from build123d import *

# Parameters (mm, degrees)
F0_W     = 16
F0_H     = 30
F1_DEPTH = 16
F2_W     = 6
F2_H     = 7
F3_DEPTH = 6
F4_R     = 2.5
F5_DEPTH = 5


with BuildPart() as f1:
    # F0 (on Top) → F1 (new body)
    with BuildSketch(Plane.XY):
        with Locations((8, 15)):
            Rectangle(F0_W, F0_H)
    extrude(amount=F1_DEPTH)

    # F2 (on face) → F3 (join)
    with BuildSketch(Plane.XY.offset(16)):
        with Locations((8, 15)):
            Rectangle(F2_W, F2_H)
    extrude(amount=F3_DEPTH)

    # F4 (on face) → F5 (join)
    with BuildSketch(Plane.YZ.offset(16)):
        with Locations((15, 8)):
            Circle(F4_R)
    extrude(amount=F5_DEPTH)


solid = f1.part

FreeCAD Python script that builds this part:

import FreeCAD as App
import Part
import Sketcher
from FreeCAD import Vector
Q = App.Units.Quantity


def add_polygon(sketch, points):
    """Adds a closed chain of lines whose ends are joined by coincident constraints."""
    first, n = sketch.GeometryCount, len(points)
    for a, b in zip(points, points[1:] + points[:1]):
        sketch.addGeometry(Part.LineSegment(App.Vector(*a, 0), App.Vector(*b, 0)), False)
    for i in range(n):
        sketch.addConstraint(Sketcher.Constraint("Coincident", first + i, 2, first + (i + 1) % n, 1))

doc = App.newDocument("Part")
body = doc.addObject("PartDesign::Body", "Body")

# Sketch on XY plane
sketch1 = body.newObject("Sketcher::SketchObject", "Sketch")
sketch1.AttachmentSupport = (doc.getObject("XY_Plane"), [""])
sketch1.MapMode = "FlatFace"
add_polygon(sketch1, [(0, 30), (0, 0), (16, 0), (16, 30)])  # lines 0-3
sketch1.addConstraint([
    Sketcher.Constraint("Vertical", 0),
    Sketcher.Constraint("Horizontal", 1),
    Sketcher.Constraint("Vertical", 2),
    Sketcher.Constraint("Horizontal", 3),
    Sketcher.Constraint("Coincident", 0, 2, -1, 1),
    Sketcher.Constraint("DistanceX", 1, 1, 1, 2, Q("16 mm")),
    Sketcher.Constraint("DistanceY", 0, 2, 0, 1, Q("30 mm")),
])
pad1 = body.newObject("PartDesign::Pad", "Pad")
pad1.Profile = sketch1
pad1.Length = 16

# Sketch on XY plane
sketch2 = body.newObject("Sketcher::SketchObject", "Sketch001")
sketch2.AttachmentSupport = (doc.getObject("XY_Plane"), [""])
sketch2.MapMode = "FlatFace"
sketch2.AttachmentOffset = App.Placement(Vector(0, 0, 16), App.Rotation())
add_polygon(sketch2, [(5, 18), (5, 12), (11, 12), (11, 18)])  # lines 0-3
sketch2.addConstraint([
    Sketcher.Constraint("Vertical", 0),
    Sketcher.Constraint("Horizontal", 1),
    Sketcher.Constraint("Vertical", 2),
    Sketcher.Constraint("Horizontal", 3),
    Sketcher.Constraint("DistanceX", 1, 1, 1, 2, Q("6 mm")),
    Sketcher.Constraint("DistanceY", 0, 2, 0, 1, Q("7 mm")),
    Sketcher.Constraint("DistanceX", -1, 1, 0, 2, Q("5 mm")),
    Sketcher.Constraint("DistanceY", -1, 1, 0, 2, Q("11.5 mm")),
])
pad2 = body.newObject("PartDesign::Pad", "Pad001")
pad2.Profile = sketch2
pad2.Length = 6

# Sketch on YZ plane
sketch3 = body.newObject("Sketcher::SketchObject", "Sketch002")
sketch3.AttachmentSupport = (doc.getObject("YZ_Plane"), [""])
sketch3.MapMode = "FlatFace"
sketch3.AttachmentOffset = App.Placement(Vector(0, 0, 16), App.Rotation())
sketch3.addGeometry(Part.Circle(Vector(15, 8, 0), Vector(0, 0, 1), 2.5), False)
sketch3.addConstraint([
    Sketcher.Constraint("Diameter", 0, Q("5 mm")),
    Sketcher.Constraint("DistanceX", -1, 1, 0, 3, Q("15 mm")),
    Sketcher.Constraint("DistanceY", -1, 1, 0, 3, Q("8 mm")),
])
pad3 = body.newObject("PartDesign::Pad", "Pad002")
pad3.Profile = sketch3
pad3.Length = 5

doc.recompute()
